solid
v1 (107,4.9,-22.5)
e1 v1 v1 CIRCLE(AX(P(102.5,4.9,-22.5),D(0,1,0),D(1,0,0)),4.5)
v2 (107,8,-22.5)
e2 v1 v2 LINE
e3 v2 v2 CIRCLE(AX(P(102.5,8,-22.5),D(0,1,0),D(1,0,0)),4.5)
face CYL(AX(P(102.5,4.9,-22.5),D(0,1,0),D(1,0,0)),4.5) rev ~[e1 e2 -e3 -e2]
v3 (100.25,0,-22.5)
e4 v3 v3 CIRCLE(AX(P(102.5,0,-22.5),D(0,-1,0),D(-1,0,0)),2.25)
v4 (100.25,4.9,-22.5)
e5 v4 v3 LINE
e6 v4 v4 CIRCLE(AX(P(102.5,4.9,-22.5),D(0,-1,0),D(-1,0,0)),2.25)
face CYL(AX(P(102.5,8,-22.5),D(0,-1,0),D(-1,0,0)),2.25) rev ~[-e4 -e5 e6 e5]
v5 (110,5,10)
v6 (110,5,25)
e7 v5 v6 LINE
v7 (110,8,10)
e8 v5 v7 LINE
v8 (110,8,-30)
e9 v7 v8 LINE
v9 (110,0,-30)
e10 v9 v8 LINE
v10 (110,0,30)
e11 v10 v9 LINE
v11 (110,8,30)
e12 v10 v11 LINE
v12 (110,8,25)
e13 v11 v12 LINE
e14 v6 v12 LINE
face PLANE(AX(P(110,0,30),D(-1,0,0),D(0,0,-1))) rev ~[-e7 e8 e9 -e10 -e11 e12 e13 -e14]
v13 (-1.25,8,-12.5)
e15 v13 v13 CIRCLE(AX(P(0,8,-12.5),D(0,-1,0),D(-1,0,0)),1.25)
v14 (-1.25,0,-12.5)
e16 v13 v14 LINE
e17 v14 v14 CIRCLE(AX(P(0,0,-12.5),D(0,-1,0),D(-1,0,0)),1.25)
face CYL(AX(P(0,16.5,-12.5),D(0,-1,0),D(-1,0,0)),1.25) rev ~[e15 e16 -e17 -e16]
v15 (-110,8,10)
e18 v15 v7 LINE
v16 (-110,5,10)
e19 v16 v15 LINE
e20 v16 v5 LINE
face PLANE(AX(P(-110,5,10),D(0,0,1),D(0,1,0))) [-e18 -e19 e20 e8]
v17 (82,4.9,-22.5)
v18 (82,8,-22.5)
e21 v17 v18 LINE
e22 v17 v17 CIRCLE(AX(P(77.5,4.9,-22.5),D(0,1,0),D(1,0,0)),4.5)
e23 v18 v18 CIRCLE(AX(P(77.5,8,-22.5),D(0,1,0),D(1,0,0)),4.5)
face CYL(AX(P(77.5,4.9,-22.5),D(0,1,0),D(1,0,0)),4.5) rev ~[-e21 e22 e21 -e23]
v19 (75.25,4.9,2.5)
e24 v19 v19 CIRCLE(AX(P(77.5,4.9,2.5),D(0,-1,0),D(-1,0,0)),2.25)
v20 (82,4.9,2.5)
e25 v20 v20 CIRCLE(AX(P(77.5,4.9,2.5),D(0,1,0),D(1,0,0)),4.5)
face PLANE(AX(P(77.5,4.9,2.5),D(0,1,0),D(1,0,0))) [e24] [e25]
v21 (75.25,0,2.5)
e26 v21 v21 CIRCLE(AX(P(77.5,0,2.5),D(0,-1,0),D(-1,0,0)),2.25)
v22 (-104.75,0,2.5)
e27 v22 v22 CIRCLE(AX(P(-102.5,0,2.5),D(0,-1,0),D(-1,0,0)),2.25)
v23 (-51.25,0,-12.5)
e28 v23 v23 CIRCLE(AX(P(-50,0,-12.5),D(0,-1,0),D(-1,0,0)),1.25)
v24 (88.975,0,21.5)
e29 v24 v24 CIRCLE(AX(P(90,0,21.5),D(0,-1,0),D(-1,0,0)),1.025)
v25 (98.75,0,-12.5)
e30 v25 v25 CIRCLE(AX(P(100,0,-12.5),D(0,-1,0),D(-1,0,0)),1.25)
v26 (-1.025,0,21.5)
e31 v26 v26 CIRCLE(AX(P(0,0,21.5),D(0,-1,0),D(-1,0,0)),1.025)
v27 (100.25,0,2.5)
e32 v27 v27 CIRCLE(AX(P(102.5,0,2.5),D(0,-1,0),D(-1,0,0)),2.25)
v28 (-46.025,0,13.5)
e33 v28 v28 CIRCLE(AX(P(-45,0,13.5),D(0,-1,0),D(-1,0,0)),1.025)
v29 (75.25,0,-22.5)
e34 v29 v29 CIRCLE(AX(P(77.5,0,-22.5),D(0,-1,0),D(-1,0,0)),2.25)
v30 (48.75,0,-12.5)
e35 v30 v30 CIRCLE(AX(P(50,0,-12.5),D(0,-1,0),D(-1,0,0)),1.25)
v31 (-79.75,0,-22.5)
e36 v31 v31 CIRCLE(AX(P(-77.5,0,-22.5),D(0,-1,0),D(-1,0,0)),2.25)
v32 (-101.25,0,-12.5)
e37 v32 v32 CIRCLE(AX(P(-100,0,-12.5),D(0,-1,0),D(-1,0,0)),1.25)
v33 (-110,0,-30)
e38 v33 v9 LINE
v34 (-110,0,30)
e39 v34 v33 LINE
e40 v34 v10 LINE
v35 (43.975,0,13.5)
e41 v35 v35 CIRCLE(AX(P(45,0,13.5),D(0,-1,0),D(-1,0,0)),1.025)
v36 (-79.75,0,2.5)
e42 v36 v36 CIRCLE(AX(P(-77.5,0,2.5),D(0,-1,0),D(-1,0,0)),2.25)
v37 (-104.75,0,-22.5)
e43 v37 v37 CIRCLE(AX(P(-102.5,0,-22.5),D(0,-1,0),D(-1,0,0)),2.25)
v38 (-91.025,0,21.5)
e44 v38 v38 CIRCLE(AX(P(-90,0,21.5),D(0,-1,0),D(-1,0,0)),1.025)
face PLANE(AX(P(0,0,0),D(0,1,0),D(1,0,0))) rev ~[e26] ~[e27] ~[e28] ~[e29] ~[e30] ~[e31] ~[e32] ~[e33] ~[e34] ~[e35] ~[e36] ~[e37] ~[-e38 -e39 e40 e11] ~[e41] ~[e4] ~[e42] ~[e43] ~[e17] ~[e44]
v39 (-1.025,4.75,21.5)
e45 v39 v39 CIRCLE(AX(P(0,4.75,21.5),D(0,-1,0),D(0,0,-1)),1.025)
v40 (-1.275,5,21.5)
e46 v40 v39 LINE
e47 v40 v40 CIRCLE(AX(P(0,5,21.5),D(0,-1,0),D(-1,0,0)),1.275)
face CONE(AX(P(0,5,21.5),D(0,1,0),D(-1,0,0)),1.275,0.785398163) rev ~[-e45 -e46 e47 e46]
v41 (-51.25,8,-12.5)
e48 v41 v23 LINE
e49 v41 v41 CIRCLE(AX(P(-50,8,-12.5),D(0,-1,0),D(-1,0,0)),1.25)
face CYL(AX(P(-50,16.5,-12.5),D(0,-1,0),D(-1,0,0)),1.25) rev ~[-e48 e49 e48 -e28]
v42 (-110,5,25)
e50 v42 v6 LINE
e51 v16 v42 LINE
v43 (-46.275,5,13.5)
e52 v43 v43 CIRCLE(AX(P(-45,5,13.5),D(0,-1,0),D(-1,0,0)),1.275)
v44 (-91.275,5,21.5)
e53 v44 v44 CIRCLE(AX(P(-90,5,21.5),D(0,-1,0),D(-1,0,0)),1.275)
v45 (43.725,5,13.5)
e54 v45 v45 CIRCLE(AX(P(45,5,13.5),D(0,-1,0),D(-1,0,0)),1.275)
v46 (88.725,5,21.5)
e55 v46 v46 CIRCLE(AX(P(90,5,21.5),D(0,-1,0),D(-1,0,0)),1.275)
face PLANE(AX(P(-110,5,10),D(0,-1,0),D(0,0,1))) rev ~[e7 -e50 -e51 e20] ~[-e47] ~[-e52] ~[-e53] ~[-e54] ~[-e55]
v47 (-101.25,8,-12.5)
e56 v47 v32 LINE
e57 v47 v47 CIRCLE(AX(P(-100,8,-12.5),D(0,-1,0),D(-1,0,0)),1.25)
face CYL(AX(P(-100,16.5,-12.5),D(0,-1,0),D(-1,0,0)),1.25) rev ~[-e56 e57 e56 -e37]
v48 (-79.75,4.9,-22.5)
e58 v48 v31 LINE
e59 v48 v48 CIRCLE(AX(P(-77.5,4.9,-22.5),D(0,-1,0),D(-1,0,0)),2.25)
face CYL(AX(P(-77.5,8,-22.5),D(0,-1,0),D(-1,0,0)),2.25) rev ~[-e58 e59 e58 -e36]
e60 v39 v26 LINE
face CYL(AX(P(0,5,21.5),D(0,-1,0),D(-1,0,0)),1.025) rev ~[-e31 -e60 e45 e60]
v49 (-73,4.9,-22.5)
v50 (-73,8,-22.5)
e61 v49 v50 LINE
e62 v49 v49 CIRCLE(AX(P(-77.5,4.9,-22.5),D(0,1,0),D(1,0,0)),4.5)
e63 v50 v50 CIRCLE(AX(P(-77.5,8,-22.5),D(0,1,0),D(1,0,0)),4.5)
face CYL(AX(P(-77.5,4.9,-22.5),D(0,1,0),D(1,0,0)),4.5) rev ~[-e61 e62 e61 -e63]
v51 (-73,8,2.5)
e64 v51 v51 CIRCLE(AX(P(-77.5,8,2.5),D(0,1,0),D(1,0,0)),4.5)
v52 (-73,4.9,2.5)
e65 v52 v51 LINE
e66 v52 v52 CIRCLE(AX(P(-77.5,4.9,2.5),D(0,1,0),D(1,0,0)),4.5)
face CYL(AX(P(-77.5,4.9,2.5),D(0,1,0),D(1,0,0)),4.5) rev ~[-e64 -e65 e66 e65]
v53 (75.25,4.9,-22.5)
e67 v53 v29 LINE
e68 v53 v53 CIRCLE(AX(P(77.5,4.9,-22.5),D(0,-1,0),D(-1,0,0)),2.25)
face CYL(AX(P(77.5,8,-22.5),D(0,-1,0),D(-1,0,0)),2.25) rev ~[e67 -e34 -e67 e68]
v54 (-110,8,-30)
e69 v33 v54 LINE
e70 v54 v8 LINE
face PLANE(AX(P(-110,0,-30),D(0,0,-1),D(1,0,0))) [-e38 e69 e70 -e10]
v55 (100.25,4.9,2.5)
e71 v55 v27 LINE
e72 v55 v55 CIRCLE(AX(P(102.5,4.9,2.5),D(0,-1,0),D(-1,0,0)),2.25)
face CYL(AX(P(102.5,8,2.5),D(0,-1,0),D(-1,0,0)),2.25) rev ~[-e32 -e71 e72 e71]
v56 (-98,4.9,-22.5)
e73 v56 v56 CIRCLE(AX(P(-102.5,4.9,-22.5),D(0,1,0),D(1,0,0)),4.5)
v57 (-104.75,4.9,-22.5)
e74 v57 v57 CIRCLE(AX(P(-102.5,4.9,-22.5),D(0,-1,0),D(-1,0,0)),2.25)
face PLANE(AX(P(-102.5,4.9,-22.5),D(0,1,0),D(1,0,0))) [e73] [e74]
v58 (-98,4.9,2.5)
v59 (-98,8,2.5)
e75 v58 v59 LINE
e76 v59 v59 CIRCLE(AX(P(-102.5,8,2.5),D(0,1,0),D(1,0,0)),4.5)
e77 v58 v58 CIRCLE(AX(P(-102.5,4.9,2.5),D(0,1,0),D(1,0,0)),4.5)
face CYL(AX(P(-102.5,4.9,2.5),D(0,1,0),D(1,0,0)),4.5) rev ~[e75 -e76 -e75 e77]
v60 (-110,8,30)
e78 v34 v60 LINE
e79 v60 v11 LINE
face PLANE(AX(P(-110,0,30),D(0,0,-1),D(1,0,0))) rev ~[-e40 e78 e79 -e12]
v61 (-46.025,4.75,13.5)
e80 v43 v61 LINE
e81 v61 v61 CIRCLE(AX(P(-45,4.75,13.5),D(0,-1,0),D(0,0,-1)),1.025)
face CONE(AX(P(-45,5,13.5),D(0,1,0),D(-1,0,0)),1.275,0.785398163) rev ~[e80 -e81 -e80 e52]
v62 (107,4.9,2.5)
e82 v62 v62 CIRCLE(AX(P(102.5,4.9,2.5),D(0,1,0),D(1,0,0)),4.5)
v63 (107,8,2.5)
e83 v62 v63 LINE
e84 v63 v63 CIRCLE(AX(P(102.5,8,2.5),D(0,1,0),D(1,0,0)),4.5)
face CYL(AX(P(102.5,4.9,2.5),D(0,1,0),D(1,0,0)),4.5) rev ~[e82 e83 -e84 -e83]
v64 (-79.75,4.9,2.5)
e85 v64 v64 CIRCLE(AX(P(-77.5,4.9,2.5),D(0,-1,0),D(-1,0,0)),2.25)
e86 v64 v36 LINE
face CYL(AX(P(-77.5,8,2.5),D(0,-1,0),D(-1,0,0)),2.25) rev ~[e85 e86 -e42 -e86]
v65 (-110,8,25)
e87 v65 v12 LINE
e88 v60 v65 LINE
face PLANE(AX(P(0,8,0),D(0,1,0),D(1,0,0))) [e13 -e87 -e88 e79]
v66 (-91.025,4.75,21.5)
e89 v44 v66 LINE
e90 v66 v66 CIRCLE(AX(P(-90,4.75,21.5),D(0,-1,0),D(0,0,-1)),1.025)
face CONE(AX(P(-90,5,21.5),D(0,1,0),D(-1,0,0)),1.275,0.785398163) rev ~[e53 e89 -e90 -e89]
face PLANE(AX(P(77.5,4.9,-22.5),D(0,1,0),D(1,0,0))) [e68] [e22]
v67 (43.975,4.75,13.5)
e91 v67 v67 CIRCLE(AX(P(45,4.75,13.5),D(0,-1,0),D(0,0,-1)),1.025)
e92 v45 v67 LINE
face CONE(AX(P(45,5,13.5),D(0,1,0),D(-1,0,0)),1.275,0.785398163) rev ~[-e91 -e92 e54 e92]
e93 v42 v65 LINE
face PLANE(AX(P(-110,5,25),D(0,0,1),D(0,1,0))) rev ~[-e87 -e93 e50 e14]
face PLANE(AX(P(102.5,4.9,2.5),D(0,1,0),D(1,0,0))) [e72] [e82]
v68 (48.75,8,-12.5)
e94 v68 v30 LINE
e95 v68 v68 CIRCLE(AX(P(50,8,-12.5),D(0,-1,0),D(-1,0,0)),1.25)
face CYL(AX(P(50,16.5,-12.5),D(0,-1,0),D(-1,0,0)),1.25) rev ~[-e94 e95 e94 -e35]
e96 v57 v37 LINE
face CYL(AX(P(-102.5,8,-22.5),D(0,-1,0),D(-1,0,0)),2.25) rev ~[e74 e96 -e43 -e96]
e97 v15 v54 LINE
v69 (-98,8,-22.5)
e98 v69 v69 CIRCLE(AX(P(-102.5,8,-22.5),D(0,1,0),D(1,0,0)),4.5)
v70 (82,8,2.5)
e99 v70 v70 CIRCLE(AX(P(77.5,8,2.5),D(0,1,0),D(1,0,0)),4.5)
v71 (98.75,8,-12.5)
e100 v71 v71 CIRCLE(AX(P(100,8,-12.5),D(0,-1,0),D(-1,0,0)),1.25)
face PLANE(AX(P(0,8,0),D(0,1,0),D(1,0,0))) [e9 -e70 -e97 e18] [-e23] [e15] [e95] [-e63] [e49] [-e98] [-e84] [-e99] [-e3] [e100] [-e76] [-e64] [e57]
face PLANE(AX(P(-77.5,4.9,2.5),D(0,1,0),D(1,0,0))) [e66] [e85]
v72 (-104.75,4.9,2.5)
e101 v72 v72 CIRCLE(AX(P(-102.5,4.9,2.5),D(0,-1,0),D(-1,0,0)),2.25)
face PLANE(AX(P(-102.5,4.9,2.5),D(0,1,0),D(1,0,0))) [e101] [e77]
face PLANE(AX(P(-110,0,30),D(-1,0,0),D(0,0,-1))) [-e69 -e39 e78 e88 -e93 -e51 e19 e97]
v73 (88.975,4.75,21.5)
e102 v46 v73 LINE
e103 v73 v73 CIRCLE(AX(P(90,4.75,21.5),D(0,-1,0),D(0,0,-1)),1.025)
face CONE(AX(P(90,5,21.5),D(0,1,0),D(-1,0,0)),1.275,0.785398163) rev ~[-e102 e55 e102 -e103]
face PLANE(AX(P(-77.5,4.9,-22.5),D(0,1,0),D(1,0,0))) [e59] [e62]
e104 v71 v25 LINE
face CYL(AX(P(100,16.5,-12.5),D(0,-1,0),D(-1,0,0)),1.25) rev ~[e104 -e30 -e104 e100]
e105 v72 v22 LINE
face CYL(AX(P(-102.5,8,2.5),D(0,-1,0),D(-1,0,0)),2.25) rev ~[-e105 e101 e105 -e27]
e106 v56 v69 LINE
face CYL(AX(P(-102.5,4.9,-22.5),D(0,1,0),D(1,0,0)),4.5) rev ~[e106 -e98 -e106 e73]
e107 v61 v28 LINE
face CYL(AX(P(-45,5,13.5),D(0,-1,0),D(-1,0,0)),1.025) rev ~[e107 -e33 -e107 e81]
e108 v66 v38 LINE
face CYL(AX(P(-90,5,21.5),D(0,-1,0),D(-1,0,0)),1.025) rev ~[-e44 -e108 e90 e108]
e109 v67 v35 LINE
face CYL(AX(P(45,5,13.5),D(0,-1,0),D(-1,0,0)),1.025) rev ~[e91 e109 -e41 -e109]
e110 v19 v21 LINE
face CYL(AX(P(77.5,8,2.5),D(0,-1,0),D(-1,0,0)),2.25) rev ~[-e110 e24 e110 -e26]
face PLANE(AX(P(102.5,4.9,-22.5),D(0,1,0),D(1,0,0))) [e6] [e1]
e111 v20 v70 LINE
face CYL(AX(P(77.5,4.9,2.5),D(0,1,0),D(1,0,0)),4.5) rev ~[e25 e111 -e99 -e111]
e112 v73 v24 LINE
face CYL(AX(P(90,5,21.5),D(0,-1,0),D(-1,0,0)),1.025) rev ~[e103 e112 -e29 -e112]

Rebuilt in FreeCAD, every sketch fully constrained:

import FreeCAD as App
import Part
import Sketcher

V = App.Vector


def add_polygon(sketch, points):
    """Adds a closed chain of lines whose ends are joined by coincident constraints."""
    first, n = sketch.GeometryCount, len(points)
    for a, b in zip(points, points[1:] + points[:1]):
        sketch.addGeometry(Part.LineSegment(App.Vector(*a, 0), App.Vector(*b, 0)), False)
    for i in range(n):
        sketch.addConstraint(Sketcher.Constraint("Coincident", first + i, 2, first + (i + 1) % n, 1))

doc = App.newDocument("Part")
body = doc.addObject("PartDesign::Body", "Body")

# Sketch on XZ plane
sketch1 = body.newObject("Sketcher::SketchObject", "Sketch")
sketch1.AttachmentSupport = (doc.getObject("XZ_Plane"), [""])
sketch1.MapMode = "FlatFace"
add_polygon(sketch1, [(-110, -30), (-110, 30), (110, 30), (110, -30)])  # lines 0-3
sketch1.addConstraint(Sketcher.Constraint("Vertical", 0))
sketch1.addConstraint(Sketcher.Constraint("Horizontal", 1))
sketch1.addConstraint(Sketcher.Constraint("Vertical", 2))
sketch1.addConstraint(Sketcher.Constraint("Horizontal", 3))
sketch1.addConstraint(Sketcher.Constraint("Symmetric", 0, 2, 2, 2, -1, 1))
sketch1.addConstraint(Sketcher.Constraint("DistanceX", 1, 1, 1, 2, 220.0))
sketch1.addConstraint(Sketcher.Constraint("DistanceY", 0, 1, 0, 2, 60.0))
pad1 = body.newObject("PartDesign::Pad", "Pad")
pad1.Profile = sketch1
pad1.Length = 8
pad1.Reversed = True

# Sketch on XZ plane
sketch2 = body.newObject("Sketcher::SketchObject", "Sketch001")
sketch2.AttachmentSupport = (doc.getObject("XZ_Plane"), [""])
sketch2.MapMode = "FlatFace"
sketch2.AttachmentOffset = App.Placement(V(0, 0, -8), App.Rotation())
sketch2.addGeometry(Part.Circle(V(-102.5, -22.5, 0), V(0, 0, 1), 2.2), False)
sketch2.addGeometry(Part.Circle(V(-77.5, -22.5, 0), V(0, 0, 1), 2.2), False)
sketch2.addGeometry(Part.Circle(V(-77.5, 2.5, 0), V(0, 0, 1), 2.2), False)
sketch2.addGeometry(Part.Circle(V(-102.5, 2.5, 0), V(0, 0, 1), 2.2), False)
sketch2.addGeometry(Part.Circle(V(102.5, 2.5, 0), V(0, 0, 1), 2.2), False)
sketch2.addGeometry(Part.Circle(V(77.5, 2.5, 0), V(0, 0, 1), 2.2), False)
sketch2.addGeometry(Part.Circle(V(77.5, -22.5, 0), V(0, 0, 1), 2.2), False)
sketch2.addGeometry(Part.Circle(V(102.5, -22.5, 0), V(0, 0, 1), 2.2), False)
sketch2.addConstraint(Sketcher.Constraint("Equal", 0, 1))
sketch2.addConstraint(Sketcher.Constraint("Equal", 1, 2))
sketch2.addConstraint(Sketcher.Constraint("Equal", 2, 3))
sketch2.addConstraint(Sketcher.Constraint("Equal", 3, 4))
sketch2.addConstraint(Sketcher.Constraint("Equal", 4, 5))
sketch2.addConstraint(Sketcher.Constraint("Equal", 5, 6))
sketch2.addConstraint(Sketcher.Constraint("Equal", 6, 7))
sketch2.addConstraint(Sketcher.Constraint("Symmetric", 3, 3, 4, 3, -2))
sketch2.addConstraint(Sketcher.Constraint("Symmetric", 2, 3, 5, 3, -2))
sketch2.addConstraint(Sketcher.Constraint("Symmetric", 1, 3, 6, 3, -2))
sketch2.addConstraint(Sketcher.Constraint("Symmetric", 0, 3, 7, 3, -2))
sketch2.addConstraint(Sketcher.Constraint("Horizontal", 0, 3, 1, 3))
sketch2.addConstraint(Sketcher.Constraint("Horizontal", 2, 3, 3, 3))
sketch2.addConstraint(Sketcher.Constraint("Vertical", 1, 3, 2, 3))
sketch2.addConstraint(Sketcher.Constraint("Vertical", 0, 3, 3, 3))
sketch2.addConstraint(Sketcher.Constraint("Diameter", 0, 4.5))
sketch2.addConstraint(Sketcher.Constraint("DistanceX", 0, 3, 1, 3, 25.0))
sketch2.addConstraint(Sketcher.Constraint("DistanceY", 1, 3, 2, 3, 25.0))
sketch2.addConstraint(Sketcher.Constraint("DistanceX", 2, 3, 4, 3, 180.0))
sketch2.addConstraint(Sketcher.Constraint("DistanceY", 0, 3, -1, 1, 22.5))
doc.recompute()
hole = body.newObject("PartDesign::Hole", "Hole")
hole.Profile = sketch2
hole.ThreadType = "None"
hole.Diameter = 4.5
hole.DepthType = "Dimension"
hole.Depth = 11.5
hole.DrillPoint = "Angled"
hole.DrillPointAngle = 118
hole.HoleCutType = "Counterbore"
hole.HoleCutDiameter = 9
hole.HoleCutDepth = 3.1
hole.Reversed = True

# Sketch on XZ plane
sketch3 = body.newObject("Sketcher::SketchObject", "Sketch002")
sketch3.AttachmentSupport = (doc.getObject("XZ_Plane"), [""])
sketch3.MapMode = "FlatFace"
sketch3.AttachmentOffset = App.Placement(V(0, 0, -8), App.Rotation())
sketch3.addGeometry(Part.Circle(V(-50, -12.5, 0), V(0, 0, 1), 1.2), False)
sketch3.addGeometry(Part.Circle(V(0, -12.5, 0), V(0, 0, 1), 1.2), False)
sketch3.addGeometry(Part.Circle(V(50, -12.5, 0), V(0, 0, 1), 1.2), False)
sketch3.addGeometry(Part.Circle(V(100, -12.5, 0), V(0, 0, 1), 1.2), False)
sketch3.addGeometry(Part.Circle(V(-100, -12.5, 0), V(0, 0, 1), 1.2), False)
sketch3.addGeometry(Part.Circle(V(150, -12.5, 0), V(0, 0, 1), 1.2), False)
sketch3.addGeometry(Part.Circle(V(200, -12.5, 0), V(0, 0, 1), 1.2), False)
sketch3.addConstraint(Sketcher.Constraint("Equal", 0, 1))
sketch3.addConstraint(Sketcher.Constraint("Equal", 1, 2))
sketch3.addConstraint(Sketcher.Constraint("Equal", 2, 3))
sketch3.addConstraint(Sketcher.Constraint("Equal", 3, 4))
sketch3.addConstraint(Sketcher.Constraint("Equal", 4, 5))
sketch3.addConstraint(Sketcher.Constraint("Equal", 5, 6))
sketch3.addConstraint(Sketcher.Constraint("Symmetric", 0, 3, 2, 3, -2))
sketch3.addConstraint(Sketcher.Constraint("Symmetric", 3, 3, 4, 3, -2))
sketch3.addConstraint(Sketcher.Constraint("PointOnObject", 1, 3, -2))
sketch3.addConstraint(Sketcher.Constraint("Horizontal", 0, 3, 1, 3))
sketch3.addConstraint(Sketcher.Constraint("Horizontal", 2, 3, 3, 3))
sketch3.addConstraint(Sketcher.Constraint("Horizontal", 4, 3, 5, 3))
sketch3.addConstraint(Sketcher.Constraint("Horizontal", 5, 3, 6, 3))
sketch3.addConstraint(Sketcher.Constraint("Diameter", 0, 2.5))
sketch3.addConstraint(Sketcher.Constraint("DistanceX", 0, 3, -1, 1, 50.0))
sketch3.addConstraint(Sketcher.Constraint("DistanceX", -1, 1, 3, 3, 100.0))
sketch3.addConstraint(Sketcher.Constraint("DistanceX", -1, 1, 5, 3, 150.0))
sketch3.addConstraint(Sketcher.Constraint("DistanceX", -1, 1, 6, 3, 200.0))
sketch3.addConstraint(Sketcher.Constraint("DistanceY", 0, 3, -1, 1, 12.5))
doc.recompute()
hole2 = body.newObject("PartDesign::Hole", "Hole001")
hole2.Profile = sketch3
hole2.ThreadType = "None"
hole2.Diameter = 2.5
hole2.DepthType = "Dimension"
hole2.Depth = 8.5
hole2.DrillPoint = "Angled"
hole2.DrillPointAngle = 118
hole2.Reversed = True

# Sketch on YZ plane
sketch4 = body.newObject("Sketcher::SketchObject", "Sketch003")
sketch4.AttachmentSupport = (doc.getObject("YZ_Plane"), [""])
sketch4.MapMode = "FlatFace"
sketch4.AttachmentOffset = App.Placement(V(0, 0, -110), App.Rotation())
add_polygon(sketch4, [(8, 10), (5, 10), (5, 25), (8, 25)])  # lines 0-3
sketch4.addConstraint(Sketcher.Constraint("Horizontal", 0))
sketch4.addConstraint(Sketcher.Constraint("Vertical", 1))
sketch4.addConstraint(Sketcher.Constraint("Horizontal", 2))
sketch4.addConstraint(Sketcher.Constraint("Vertical", 3))
sketch4.addConstraint(Sketcher.Constraint("DistanceX", 0, 2, 0, 1, 3.0))
sketch4.addConstraint(Sketcher.Constraint("DistanceY", 1, 1, 1, 2, 15.0))
sketch4.addConstraint(Sketcher.Constraint("DistanceX", -1, 1, 0, 2, 5.0))
sketch4.addConstraint(Sketcher.Constraint("DistanceY", -1, 1, 0, 2, 10.0))
pocket1 = body.newObject("PartDesign::Pocket", "Pocket")
pocket1.Profile = sketch4
pocket1.Type = "ThroughAll"
pocket1.Reversed = True

# Sketch on XZ plane
sketch5 = body.newObject("Sketcher::SketchObject", "Sketch004")
sketch5.AttachmentSupport = (doc.getObject("XZ_Plane"), [""])
sketch5.MapMode = "FlatFace"
sketch5.AttachmentOffset = App.Placement(V(0, 0, -5), App.Rotation())
sketch5.addGeometry(Part.Circle(V(-90, 21.5, 0), V(0, 0, 1), 1), False)
sketch5.addGeometry(Part.Circle(V(0, 21.5, 0), V(0, 0, 1), 1), False)
sketch5.addGeometry(Part.Circle(V(90, 21.5, 0), V(0, 0, 1), 1), False)
sketch5.addGeometry(Part.Circle(V(45, 13.5, 0), V(0, 0, 1), 1), False)
sketch5.addGeometry(Part.Circle(V(-45, 13.5, 0), V(0, 0, 1), 1), False)
sketch5.addConstraint(Sketcher.Constraint("Equal", 0, 1))
sketch5.addConstraint(Sketcher.Constraint("Equal", 1, 2))
sketch5.addConstraint(Sketcher.Constraint("Equal", 2, 3))
sketch5.addConstraint(Sketcher.Constraint("Equal", 3, 4))
sketch5.addConstraint(Sketcher.Constraint("Symmetric", 0, 3, 2, 3, -2))
sketch5.addConstraint(Sketcher.Constraint("Symmetric", 3, 3, 4, 3, -2))
sketch5.addConstraint(Sketcher.Constraint("PointOnObject", 1, 3, -2))
sketch5.addConstraint(Sketcher.Constraint("Horizontal", 0, 3, 1, 3))
sketch5.addConstraint(Sketcher.Constraint("Diameter", 0, 2.05))
sketch5.addConstraint(Sketcher.Constraint("DistanceX", 0, 3, -1, 1, 90.0))
sketch5.addConstraint(Sketcher.Constraint("DistanceX", -1, 1, 3, 3, 45.0))
sketch5.addConstraint(Sketcher.Constraint("DistanceY", 3, 3, 1, 3, 8.0))
sketch5.addConstraint(Sketcher.Constraint("DistanceY", -1, 1, 0, 3, 21.5))
doc.recompute()
hole3 = body.newObject("PartDesign::Hole", "Hole002")
hole3.Profile = sketch5
hole3.ThreadType = "None"
hole3.Diameter = 2.05
hole3.DepthType = "ThroughAll"
hole3.HoleCutType = "Countersink"
hole3.HoleCutDiameter = 2.55
hole3.HoleCutCountersinkAngle = 90
hole3.Reversed = True

doc.recompute()
